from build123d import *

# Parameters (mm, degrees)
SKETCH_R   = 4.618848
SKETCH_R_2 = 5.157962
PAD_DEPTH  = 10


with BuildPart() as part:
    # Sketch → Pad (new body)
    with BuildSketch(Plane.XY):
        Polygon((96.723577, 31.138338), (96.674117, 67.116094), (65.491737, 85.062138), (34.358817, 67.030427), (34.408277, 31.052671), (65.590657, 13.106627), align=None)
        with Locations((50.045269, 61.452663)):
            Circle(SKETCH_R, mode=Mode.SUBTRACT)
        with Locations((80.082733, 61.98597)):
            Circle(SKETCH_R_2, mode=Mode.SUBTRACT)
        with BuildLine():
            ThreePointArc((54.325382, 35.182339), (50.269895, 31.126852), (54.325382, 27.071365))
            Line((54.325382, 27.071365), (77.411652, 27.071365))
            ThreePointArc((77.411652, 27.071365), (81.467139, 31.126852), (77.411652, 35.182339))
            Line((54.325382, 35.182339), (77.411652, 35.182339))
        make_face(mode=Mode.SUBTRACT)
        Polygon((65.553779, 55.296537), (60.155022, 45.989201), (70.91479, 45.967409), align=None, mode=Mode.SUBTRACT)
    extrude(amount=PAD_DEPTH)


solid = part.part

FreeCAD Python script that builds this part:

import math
import FreeCAD as App
import Part
import Sketcher
from FreeCAD import Vector
Q = App.Units.Quantity

doc = App.newDocument("Part")
body = doc.addObject("PartDesign::Body", "Body")

# Sketch on XY plane
sketch1 = body.newObject("Sketcher::SketchObject", "Sketch")
sketch1.AttachmentSupport = (doc.getObject("XY_Plane"), [""])
sketch1.MapMode = "FlatFace"
sketch1.addGeometry([
    Part.LineSegment(Vector(96.7, 31.1, 0), Vector(96.7, 67.1, 0)),  # 0
    Part.LineSegment(Vector(96.7, 67.1, 0), Vector(65.5, 85.1, 0)),  # 1
    Part.LineSegment(Vector(65.5, 85.1, 0), Vector(34.4, 67, 0)),  # 2
    Part.LineSegment(Vector(34.4, 67, 0), Vector(34.4, 31.1, 0)),  # 3
    Part.LineSegment(Vector(34.4, 31.1, 0), Vector(65.6, 13.1, 0)),  # 4
    Part.LineSegment(Vector(65.6, 13.1, 0), Vector(96.7, 31.1, 0)),  # 5
    Part.ArcOfCircle(Part.Circle(Vector(54.3, 31.1, 0), Vector(0, 0, 1), 4.1), math.radians(90), math.radians(270)),  # 6
    Part.LineSegment(Vector(54.3, 35.2, 0), Vector(77.4, 35.2, 0)),  # 7
    Part.ArcOfCircle(Part.Circle(Vector(77.4, 31.1, 0), Vector(0, 0, 1), 4.1), math.radians(-90), math.radians(90)),  # 8
    Part.LineSegment(Vector(77.4, 27.1, 0), Vector(54.3, 27.1, 0)),  # 9
    Part.Circle(Vector(50, 61.5, 0), Vector(0, 0, 1), 4.6),  # 10
    Part.LineSegment(Vector(60.2, 46, 0), Vector(65.6, 55.3, 0)),  # 11
    Part.LineSegment(Vector(65.6, 55.3, 0), Vector(70.9, 46, 0)),  # 12
    Part.LineSegment(Vector(70.9, 46, 0), Vector(60.2, 46, 0)),  # 13
    Part.Circle(Vector(80.1, 62, 0), Vector(0, 0, 1), 5.2),  # 14
], False)
sketch1.addConstraint([
    Sketcher.Constraint("Coincident", 0, 2, 1, 1),
    Sketcher.Constraint("Coincident", 1, 2, 2, 1),
    Sketcher.Constraint("Coincident", 2, 2, 3, 1),
    Sketcher.Constraint("Coincident", 3, 2, 4, 1),
    Sketcher.Constraint("Coincident", 4, 2, 5, 1),
    Sketcher.Constraint("Coincident", 5, 2, 0, 1),
    Sketcher.Constraint("Tangent", 6, 1, 7, 1),
    Sketcher.Constraint("Tangent", 7, 2, 8, 2),
    Sketcher.Constraint("Tangent", 8, 1, 9, 1),
    Sketcher.Constraint("Tangent", 9, 2, 6, 2),
    Sketcher.Constraint("Coincident", 11, 2, 12, 1),
    Sketcher.Constraint("Coincident", 12, 2, 13, 1),
    Sketcher.Constraint("Coincident", 13, 2, 11, 1),
    Sketcher.Constraint("Horizontal", 7),
    Sketcher.Constraint("Horizontal", 9),
    Sketcher.Constraint("Parallel", 0, 3),
    Sketcher.Constraint("Parallel", 1, 4),
    Sketcher.Constraint("Parallel", 2, 5),
    Sketcher.Constraint("Equal", 0, 1),
    Sketcher.Constraint("Equal", 1, 2),
    Sketcher.Constraint("Equal", 2, 3),
    Sketcher.Constraint("Equal", 11, 12),
    Sketcher.Constraint("Equal", 12, 13),
    Sketcher.Constraint("Diameter", 10, Q("9.237696 mm")),
    Sketcher.Constraint("Diameter", 14, Q("10.315924 mm")),
    Sketcher.Constraint("Radius", 6, Q("4.055487 mm")),
    Sketcher.Constraint("DistanceY", 5, 2, 7, 2, Q("4.044001 mm")),
    Sketcher.Constraint("DistanceX", 7, 1, 7, 2, Q("23.08627 mm")),
    Sketcher.Constraint("DistanceY", -1, 1, 13, 2, Q("45.989201 mm")),
    Sketcher.Constraint("DistanceY", 3, 2, 14, 3, Q("30.933299 mm")),
    Sketcher.Constraint("DistanceY", 6, 1, 11, 2, Q("20.114198 mm")),
    Sketcher.Constraint("Distance", 0, Q("35.97779 mm")),
    Sketcher.Constraint("Distance", 11, Q("10.75979 mm")),
    Sketcher.Constraint("DistanceX", -1, 1, 6, 3, Q("54.325382 mm")),
    Sketcher.Constraint("DistanceY", -1, 1, 6, 3, Q("31.126852 mm")),
    Sketcher.Constraint("DistanceX", -1, 1, 10, 3, Q("50.045269 mm")),
    Sketcher.Constraint("DistanceY", -1, 1, 14, 3, Q("61.98597 mm")),
    Sketcher.Constraint("DistanceY", -1, 1, 1, 2, Q("85.062138 mm")),
    Sketcher.Constraint("DistanceX", -1, 1, 11, 2, Q("65.553779 mm")),
    Sketcher.Constraint("DistanceY", 6, 3, 10, 3, Q("30.325811 mm")),
    Sketcher.Constraint("DistanceX", 8, 3, 14, 3, Q("2.671081 mm")),
    Sketcher.Constraint("DistanceX", 10, 3, 1, 2, Q("15.446468 mm")),
    Sketcher.Constraint("DistanceX", 3, 2, 10, 3, Q("15.636992 mm")),
])
pad1 = body.newObject("PartDesign::Pad", "Pad")
pad1.Profile = sketch1
pad1.Length = 10

doc.recompute()
